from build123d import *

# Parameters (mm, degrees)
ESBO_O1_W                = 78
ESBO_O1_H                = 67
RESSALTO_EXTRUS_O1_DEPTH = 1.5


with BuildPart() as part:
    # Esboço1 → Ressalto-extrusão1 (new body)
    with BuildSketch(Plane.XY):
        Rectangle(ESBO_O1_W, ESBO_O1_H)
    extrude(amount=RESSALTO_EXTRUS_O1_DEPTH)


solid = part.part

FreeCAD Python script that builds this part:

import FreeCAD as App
import Part
import Sketcher


def add_polygon(sketch, points):
    """Adds a closed chain of lines whose ends are joined by coincident constraints."""
    first, n = sketch.GeometryCount, len(points)
    for a, b in zip(points, points[1:] + points[:1]):
        sketch.addGeometry(Part.LineSegment(App.Vector(*a, 0), App.Vector(*b, 0)), False)
    for i in range(n):
        sketch.addConstraint(Sketcher.Constraint("Coincident", first + i, 2, first + (i + 1) % n, 1))

doc = App.newDocument("Part")
body = doc.addObject("PartDesign::Body", "Body")

# Sketch on XY plane
sketch1 = body.newObject("Sketcher::SketchObject", "Sketch")
sketch1.AttachmentSupport = (doc.getObject("XY_Plane"), [""])
sketch1.MapMode = "FlatFace"
add_polygon(sketch1, [(-39, 33.5), (-39, -33.5), (39, -33.5), (39, 33.5)])  # lines 0-3
sketch1.addConstraint([
    Sketcher.Constraint("Vertical", 0),
    Sketcher.Constraint("Horizontal", 1),
    Sketcher.Constraint("Vertical", 2),
    Sketcher.Constraint("Horizontal", 3),
    Sketcher.Constraint("Symmetric", 0, 2, 2, 2, -1, 1),
    Sketcher.Constraint("DistanceX", 1, 1, 1, 2, 78.0),
    Sketcher.Constraint("DistanceY", 0, 2, 0, 1, 67.0),
])
pad1 = body.newObject("PartDesign::Pad", "Pad")
pad1.Profile = sketch1
pad1.Length = 1.5

doc.recompute()
